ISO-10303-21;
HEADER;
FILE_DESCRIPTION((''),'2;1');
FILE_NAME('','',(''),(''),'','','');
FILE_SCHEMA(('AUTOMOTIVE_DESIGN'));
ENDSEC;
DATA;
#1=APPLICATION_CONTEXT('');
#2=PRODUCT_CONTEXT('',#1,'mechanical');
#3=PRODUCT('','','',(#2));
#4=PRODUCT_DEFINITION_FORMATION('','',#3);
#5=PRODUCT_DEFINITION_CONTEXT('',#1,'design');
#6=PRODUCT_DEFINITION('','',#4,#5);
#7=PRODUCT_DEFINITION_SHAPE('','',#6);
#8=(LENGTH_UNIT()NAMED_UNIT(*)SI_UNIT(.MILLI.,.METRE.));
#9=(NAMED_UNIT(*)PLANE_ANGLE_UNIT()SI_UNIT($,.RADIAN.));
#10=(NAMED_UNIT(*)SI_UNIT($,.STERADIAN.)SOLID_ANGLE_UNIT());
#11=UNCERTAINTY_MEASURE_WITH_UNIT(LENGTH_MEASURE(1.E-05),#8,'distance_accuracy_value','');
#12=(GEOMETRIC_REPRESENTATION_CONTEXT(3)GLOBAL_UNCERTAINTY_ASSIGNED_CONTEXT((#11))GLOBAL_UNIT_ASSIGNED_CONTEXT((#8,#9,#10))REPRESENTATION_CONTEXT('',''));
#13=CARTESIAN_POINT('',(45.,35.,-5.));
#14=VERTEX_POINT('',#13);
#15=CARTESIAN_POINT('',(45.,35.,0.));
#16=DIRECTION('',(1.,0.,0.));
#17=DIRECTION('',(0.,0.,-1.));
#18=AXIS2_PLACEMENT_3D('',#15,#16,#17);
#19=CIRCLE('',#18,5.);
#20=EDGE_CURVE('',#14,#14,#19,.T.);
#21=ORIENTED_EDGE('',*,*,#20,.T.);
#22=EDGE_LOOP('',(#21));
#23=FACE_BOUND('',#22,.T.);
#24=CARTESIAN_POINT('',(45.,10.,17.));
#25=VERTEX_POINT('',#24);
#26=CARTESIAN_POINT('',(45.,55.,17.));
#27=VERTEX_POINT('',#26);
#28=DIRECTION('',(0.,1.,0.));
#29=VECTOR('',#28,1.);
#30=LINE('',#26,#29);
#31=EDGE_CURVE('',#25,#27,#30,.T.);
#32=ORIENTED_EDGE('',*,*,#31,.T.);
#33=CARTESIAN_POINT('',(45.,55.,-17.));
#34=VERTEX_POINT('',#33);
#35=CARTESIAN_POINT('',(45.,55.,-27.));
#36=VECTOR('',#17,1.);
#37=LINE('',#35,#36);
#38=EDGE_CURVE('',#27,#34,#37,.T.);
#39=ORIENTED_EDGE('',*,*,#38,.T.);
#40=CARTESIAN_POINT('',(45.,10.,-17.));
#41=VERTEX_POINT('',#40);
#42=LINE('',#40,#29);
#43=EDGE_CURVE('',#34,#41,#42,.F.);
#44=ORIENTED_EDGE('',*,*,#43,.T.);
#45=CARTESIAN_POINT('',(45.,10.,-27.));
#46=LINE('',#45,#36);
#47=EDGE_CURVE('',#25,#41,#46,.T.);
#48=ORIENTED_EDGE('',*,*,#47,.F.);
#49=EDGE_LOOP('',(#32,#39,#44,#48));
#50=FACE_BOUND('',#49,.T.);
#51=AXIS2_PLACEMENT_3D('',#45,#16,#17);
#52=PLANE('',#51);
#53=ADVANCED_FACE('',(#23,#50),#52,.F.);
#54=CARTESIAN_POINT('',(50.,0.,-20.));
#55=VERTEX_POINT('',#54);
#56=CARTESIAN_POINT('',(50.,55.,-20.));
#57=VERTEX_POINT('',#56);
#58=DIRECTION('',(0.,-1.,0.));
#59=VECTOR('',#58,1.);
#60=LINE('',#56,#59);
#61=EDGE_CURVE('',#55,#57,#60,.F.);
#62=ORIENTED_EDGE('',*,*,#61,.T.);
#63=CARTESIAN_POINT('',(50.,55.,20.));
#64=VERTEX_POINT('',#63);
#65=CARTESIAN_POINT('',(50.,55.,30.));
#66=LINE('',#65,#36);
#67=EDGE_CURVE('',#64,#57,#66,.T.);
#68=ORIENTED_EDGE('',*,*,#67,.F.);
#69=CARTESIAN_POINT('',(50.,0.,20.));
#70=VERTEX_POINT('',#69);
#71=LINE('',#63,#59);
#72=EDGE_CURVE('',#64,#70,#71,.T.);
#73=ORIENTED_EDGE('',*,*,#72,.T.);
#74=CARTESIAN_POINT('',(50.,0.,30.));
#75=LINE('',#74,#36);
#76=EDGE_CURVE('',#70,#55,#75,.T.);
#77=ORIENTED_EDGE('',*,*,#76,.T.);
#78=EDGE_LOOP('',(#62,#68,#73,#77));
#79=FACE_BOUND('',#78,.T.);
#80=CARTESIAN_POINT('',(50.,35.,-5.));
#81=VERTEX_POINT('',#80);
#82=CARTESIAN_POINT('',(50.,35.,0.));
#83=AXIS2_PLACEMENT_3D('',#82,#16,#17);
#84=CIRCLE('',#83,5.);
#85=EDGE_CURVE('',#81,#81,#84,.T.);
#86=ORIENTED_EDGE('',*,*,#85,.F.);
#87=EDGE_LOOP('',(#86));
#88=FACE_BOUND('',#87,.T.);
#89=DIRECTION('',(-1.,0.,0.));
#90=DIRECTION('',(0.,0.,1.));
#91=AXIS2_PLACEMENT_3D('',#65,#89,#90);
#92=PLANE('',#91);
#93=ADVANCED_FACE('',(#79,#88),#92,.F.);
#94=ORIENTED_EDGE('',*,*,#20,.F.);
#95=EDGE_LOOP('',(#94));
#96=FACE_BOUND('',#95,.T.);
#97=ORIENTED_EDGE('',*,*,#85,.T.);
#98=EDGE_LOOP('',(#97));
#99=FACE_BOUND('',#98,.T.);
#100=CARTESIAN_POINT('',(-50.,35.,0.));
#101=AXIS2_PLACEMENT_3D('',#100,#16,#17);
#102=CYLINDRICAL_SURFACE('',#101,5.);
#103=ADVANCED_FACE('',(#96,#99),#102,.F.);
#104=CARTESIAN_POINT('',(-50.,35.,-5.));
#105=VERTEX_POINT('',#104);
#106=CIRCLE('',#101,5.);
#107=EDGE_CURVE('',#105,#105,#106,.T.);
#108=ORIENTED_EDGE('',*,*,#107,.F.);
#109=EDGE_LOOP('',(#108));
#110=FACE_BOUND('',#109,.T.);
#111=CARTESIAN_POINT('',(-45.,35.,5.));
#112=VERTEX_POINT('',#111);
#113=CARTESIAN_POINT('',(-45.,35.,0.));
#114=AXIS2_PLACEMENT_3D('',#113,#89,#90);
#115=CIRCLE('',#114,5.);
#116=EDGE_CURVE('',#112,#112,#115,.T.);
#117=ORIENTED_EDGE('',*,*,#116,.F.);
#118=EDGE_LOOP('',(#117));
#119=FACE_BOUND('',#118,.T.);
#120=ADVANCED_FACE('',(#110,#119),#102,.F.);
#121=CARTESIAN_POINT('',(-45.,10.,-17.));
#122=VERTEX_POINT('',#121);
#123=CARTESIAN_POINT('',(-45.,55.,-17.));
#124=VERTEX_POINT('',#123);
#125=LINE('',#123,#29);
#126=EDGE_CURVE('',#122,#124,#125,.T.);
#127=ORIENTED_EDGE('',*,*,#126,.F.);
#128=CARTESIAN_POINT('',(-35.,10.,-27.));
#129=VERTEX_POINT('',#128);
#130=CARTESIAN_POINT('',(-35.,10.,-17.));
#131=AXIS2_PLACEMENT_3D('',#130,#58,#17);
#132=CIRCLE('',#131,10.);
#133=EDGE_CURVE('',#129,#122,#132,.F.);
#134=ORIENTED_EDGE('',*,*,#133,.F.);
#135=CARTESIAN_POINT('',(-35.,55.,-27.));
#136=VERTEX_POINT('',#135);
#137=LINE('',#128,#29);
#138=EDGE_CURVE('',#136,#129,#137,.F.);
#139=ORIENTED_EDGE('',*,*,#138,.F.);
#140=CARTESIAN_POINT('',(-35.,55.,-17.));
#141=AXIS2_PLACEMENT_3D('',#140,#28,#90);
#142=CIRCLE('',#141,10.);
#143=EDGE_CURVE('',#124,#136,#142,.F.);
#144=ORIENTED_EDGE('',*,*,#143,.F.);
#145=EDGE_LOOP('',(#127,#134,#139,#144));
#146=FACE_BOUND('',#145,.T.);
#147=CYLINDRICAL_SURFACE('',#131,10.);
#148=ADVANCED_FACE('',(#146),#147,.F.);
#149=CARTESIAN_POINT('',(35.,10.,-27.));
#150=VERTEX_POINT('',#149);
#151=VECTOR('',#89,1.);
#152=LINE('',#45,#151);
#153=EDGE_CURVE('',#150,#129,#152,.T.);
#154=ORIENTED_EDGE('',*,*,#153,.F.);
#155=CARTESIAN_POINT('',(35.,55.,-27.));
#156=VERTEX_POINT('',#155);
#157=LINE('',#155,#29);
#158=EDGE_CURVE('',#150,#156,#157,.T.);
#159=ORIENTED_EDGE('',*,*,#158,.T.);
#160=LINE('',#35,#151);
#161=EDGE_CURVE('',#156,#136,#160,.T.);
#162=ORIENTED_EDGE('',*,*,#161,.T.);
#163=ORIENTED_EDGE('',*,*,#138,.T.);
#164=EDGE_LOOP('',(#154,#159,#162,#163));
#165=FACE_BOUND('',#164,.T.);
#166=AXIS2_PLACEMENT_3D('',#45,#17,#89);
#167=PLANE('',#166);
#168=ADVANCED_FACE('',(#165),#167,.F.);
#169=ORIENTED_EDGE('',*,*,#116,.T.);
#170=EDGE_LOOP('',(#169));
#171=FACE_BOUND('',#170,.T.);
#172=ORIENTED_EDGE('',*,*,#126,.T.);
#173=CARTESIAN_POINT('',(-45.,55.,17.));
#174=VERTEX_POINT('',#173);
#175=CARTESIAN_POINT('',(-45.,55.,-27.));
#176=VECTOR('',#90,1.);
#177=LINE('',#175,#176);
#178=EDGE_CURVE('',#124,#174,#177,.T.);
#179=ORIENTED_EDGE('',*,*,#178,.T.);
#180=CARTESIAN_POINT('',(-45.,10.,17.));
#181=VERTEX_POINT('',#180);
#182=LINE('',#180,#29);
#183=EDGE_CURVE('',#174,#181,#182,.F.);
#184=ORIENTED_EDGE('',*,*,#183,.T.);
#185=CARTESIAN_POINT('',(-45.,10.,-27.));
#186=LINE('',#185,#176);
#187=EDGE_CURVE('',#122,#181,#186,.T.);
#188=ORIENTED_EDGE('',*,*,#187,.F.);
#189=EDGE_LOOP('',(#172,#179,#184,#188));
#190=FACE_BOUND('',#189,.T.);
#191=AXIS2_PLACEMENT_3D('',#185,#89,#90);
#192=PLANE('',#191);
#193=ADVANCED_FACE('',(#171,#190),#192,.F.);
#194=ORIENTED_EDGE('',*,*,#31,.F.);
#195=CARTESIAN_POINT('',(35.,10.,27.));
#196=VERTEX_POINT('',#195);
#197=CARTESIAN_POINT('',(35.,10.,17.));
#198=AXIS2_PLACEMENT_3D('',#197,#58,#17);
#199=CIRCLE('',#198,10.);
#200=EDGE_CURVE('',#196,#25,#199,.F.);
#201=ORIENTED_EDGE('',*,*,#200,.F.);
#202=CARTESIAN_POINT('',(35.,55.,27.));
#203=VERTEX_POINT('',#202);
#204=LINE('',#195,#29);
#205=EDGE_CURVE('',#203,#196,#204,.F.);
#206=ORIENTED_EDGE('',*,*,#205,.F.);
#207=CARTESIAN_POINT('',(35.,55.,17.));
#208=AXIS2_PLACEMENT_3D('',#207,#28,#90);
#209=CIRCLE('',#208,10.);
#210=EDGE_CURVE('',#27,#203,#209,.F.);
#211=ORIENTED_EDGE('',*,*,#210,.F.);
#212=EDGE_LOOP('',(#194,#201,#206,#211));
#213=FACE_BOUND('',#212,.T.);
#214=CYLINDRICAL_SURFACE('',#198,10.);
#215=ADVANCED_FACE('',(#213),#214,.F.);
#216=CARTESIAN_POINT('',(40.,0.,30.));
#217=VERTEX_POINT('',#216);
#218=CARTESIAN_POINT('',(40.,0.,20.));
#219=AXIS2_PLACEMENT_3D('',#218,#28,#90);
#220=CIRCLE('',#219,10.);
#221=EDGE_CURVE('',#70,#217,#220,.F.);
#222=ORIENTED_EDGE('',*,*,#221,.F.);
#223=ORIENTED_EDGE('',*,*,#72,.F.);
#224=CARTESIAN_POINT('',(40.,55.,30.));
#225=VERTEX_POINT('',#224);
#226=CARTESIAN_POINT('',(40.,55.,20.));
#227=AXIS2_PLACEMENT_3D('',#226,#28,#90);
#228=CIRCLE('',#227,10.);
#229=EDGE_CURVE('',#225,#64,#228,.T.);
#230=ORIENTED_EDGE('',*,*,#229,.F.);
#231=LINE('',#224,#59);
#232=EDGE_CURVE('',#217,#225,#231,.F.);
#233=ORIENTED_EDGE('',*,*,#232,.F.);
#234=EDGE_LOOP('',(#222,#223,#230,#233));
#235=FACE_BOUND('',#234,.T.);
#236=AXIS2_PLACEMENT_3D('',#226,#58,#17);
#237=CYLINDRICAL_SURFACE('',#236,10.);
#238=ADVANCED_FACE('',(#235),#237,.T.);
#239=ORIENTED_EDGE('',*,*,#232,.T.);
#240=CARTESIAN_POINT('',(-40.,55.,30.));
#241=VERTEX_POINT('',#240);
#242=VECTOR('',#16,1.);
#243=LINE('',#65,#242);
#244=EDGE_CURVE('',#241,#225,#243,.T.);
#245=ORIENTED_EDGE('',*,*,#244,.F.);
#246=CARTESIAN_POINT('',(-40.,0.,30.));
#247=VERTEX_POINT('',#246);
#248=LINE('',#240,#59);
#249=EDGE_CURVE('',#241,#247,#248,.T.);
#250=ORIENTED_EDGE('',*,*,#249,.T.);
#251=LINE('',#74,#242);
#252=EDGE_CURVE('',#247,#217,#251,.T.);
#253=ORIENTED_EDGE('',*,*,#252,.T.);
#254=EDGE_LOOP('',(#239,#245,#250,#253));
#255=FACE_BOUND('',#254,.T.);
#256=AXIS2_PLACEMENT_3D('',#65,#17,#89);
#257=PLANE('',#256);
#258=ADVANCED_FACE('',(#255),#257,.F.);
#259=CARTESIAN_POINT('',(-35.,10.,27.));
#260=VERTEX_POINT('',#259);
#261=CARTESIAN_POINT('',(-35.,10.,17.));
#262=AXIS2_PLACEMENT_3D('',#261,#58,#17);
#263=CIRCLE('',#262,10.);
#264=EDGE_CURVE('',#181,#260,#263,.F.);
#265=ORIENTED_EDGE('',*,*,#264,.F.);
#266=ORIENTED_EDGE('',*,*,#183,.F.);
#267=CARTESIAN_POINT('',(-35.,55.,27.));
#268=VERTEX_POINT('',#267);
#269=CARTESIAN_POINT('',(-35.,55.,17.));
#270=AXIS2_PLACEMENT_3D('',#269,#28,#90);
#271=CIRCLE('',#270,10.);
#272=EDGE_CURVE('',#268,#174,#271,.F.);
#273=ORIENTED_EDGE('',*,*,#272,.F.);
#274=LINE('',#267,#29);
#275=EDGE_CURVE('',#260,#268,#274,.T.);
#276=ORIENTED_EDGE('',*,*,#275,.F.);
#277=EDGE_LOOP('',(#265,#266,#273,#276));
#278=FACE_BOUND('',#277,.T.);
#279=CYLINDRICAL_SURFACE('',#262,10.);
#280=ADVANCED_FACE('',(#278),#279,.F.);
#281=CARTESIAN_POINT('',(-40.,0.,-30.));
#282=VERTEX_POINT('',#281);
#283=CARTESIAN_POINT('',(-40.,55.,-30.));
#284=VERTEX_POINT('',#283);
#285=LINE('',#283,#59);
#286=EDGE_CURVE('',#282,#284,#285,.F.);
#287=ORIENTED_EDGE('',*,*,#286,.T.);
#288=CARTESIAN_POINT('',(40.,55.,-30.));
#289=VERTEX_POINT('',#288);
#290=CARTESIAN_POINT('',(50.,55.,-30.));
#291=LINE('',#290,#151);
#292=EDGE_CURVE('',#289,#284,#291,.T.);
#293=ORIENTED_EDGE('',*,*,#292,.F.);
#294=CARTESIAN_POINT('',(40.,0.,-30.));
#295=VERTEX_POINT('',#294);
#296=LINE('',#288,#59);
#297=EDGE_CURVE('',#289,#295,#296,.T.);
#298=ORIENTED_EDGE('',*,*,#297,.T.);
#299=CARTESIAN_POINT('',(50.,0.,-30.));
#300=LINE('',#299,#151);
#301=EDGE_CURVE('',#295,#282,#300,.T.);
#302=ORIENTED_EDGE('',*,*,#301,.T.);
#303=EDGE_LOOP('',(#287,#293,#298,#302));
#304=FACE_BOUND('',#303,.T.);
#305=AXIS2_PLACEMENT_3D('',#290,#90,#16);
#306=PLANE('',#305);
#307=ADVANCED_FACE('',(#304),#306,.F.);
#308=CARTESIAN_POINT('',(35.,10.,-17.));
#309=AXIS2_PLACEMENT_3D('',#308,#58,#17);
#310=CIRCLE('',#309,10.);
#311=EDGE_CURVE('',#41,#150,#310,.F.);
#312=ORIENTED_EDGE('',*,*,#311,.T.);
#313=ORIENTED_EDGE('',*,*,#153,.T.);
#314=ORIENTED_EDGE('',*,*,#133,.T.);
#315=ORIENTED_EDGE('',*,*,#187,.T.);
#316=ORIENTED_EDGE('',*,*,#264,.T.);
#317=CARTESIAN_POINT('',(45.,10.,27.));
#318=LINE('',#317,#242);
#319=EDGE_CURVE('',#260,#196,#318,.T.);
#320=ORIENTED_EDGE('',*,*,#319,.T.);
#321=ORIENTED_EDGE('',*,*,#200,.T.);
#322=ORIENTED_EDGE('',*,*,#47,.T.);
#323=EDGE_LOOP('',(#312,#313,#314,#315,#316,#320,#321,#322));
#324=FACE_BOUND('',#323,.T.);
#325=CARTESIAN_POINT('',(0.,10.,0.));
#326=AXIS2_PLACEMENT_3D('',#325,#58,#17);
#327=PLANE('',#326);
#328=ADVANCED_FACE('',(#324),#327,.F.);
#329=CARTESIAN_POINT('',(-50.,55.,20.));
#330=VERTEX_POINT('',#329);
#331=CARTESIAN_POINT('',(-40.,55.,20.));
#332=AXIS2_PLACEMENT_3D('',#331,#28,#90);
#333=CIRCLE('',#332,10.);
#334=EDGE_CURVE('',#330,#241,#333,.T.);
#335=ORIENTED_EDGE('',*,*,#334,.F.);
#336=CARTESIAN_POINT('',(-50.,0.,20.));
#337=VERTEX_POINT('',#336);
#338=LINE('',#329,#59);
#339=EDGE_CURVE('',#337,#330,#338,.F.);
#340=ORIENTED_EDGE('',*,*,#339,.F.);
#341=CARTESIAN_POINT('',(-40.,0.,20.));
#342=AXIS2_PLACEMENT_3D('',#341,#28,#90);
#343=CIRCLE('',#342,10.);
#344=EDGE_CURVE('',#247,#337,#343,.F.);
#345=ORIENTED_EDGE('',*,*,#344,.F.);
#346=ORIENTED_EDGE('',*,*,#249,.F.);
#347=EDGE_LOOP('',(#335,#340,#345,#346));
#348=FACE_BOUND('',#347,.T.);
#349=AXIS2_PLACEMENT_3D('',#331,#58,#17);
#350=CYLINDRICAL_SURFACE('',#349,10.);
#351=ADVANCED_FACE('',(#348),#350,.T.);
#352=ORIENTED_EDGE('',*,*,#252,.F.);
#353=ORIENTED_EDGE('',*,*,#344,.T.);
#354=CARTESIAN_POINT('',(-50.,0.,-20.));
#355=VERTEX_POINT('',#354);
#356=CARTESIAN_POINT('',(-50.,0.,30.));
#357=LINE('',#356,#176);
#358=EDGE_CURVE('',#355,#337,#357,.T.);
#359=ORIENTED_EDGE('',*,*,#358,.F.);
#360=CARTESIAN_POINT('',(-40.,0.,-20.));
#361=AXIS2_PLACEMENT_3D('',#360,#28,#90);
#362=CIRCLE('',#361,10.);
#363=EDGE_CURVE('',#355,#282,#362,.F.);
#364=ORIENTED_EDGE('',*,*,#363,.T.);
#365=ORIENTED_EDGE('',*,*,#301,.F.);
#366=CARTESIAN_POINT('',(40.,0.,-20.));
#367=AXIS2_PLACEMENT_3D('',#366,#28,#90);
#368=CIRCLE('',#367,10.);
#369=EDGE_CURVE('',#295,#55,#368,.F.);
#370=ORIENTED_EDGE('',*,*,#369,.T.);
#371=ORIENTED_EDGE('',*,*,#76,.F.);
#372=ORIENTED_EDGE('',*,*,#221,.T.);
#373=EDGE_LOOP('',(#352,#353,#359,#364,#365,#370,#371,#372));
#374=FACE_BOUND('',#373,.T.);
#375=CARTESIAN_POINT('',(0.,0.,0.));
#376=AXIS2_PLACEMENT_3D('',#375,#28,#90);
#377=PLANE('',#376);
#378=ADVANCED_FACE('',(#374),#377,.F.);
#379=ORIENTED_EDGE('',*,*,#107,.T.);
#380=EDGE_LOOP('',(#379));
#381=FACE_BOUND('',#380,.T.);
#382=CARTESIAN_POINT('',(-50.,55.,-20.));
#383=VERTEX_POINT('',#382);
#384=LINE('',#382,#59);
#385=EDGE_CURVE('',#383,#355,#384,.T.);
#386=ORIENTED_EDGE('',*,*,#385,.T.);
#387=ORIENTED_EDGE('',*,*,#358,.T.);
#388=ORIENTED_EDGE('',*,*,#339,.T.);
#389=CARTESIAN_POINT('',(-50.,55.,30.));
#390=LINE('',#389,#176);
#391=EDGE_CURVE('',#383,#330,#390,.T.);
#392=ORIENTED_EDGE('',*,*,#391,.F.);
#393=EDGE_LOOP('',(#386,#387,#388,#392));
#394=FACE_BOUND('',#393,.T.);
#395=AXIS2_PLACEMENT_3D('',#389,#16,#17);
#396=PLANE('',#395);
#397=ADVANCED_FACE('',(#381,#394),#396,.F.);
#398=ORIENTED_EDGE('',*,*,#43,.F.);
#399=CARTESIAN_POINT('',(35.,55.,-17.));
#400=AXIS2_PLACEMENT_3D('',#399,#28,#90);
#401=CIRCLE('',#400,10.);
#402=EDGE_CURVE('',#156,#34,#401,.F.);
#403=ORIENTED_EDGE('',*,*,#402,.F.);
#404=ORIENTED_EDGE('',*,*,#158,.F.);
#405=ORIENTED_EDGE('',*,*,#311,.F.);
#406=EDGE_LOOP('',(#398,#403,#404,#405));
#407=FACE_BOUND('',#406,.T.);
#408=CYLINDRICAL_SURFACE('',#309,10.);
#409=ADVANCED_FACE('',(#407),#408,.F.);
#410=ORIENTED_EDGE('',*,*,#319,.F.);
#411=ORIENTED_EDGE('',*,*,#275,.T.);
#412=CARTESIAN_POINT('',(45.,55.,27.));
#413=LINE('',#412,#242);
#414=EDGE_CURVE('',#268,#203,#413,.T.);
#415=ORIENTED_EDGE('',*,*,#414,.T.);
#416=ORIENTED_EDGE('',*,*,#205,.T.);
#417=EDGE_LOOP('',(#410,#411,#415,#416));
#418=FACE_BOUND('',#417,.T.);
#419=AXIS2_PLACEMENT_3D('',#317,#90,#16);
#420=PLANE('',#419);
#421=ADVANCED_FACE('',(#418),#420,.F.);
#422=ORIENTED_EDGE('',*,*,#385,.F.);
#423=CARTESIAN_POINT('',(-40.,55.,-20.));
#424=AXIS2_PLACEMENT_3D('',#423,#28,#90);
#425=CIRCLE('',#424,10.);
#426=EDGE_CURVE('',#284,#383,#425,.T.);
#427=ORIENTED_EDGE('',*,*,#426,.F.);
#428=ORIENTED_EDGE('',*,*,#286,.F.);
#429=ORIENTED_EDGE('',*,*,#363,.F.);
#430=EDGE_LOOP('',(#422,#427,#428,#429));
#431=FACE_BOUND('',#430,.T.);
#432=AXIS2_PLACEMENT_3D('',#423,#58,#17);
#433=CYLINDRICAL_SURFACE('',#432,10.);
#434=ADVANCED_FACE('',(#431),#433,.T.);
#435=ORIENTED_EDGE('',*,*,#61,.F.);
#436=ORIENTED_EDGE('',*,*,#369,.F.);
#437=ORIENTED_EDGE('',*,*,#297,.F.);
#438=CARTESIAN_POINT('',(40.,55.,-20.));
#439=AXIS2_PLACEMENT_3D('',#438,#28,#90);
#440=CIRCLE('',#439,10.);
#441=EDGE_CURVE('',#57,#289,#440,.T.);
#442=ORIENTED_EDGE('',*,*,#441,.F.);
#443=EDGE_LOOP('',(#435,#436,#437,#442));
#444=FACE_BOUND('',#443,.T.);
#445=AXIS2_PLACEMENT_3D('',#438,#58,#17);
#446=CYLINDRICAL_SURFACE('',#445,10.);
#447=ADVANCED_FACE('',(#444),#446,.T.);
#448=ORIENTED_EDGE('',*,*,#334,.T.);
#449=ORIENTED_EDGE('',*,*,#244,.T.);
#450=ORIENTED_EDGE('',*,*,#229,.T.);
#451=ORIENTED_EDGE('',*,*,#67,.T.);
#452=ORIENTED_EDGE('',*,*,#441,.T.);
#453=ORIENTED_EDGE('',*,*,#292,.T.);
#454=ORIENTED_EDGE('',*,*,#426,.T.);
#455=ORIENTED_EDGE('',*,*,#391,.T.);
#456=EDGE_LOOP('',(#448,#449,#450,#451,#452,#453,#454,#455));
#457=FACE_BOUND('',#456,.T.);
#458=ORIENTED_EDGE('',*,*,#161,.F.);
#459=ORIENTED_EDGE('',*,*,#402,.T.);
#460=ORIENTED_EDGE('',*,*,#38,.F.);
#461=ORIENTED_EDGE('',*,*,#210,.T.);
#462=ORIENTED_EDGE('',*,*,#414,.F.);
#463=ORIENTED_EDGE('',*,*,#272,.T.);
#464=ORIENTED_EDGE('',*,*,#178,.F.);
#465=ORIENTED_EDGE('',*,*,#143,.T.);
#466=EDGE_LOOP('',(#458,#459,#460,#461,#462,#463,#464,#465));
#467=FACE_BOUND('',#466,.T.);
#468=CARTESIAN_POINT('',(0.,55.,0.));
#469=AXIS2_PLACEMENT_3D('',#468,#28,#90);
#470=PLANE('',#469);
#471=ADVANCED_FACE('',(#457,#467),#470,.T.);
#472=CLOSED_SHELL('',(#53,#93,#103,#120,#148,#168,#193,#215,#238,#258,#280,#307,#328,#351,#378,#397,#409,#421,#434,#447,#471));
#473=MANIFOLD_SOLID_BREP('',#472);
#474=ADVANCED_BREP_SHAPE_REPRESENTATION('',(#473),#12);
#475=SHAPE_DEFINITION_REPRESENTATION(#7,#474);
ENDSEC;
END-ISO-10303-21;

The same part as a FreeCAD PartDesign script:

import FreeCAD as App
import Part
import Sketcher
Q = App.Units.Quantity


def edges_at(feature, points):
    """Names of the edges that pass closest to the given points."""
    edges = feature.Shape.Edges
    near = lambda p: min(range(len(edges)), key=lambda i: edges[i].distToShape(Part.Vertex(*p))[0])
    return sorted({f"Edge{near(p) + 1}" for p in points})


def add_polygon(sketch, points):
    """Adds a closed chain of lines whose ends are joined by coincident constraints."""
    first, n = sketch.GeometryCount, len(points)
    for a, b in zip(points, points[1:] + points[:1]):
        sketch.addGeometry(Part.LineSegment(App.Vector(*a, 0), App.Vector(*b, 0)), False)
    for i in range(n):
        sketch.addConstraint(Sketcher.Constraint("Coincident", first + i, 2, first + (i + 1) % n, 1))

doc = App.newDocument("Part")
body = doc.addObject("PartDesign::Body", "Body")

# Sketch on XZ plane
sketch1 = body.newObject("Sketcher::SketchObject", "Sketch")
sketch1.AttachmentSupport = (doc.getObject("XZ_Plane"), [""])
sketch1.MapMode = "FlatFace"
add_polygon(sketch1, [(-50, -30), (-50, 30), (50, 30), (50, -30)])  # lines 0-3
sketch1.addConstraint([
    Sketcher.Constraint("Vertical", 0),
    Sketcher.Constraint("Horizontal", 1),
    Sketcher.Constraint("Vertical", 2),
    Sketcher.Constraint("Horizontal", 3),
    Sketcher.Constraint("Symmetric", 0, 2, 2, 2, -1, 1),
    Sketcher.Constraint("DistanceX", 1, 1, 1, 2, Q("100 mm")),
    Sketcher.Constraint("DistanceY", 0, 1, 0, 2, Q("60 mm")),
])
pad1 = body.newObject("PartDesign::Pad", "Pad")
pad1.Profile = sketch1
pad1.Length = 55
pad1.Reversed = True

# Sketch on XZ plane
sketch2 = body.newObject("Sketcher::SketchObject", "Sketch001")
sketch2.AttachmentSupport = (doc.getObject("XZ_Plane"), [""])
sketch2.MapMode = "FlatFace"
sketch2.AttachmentOffset = App.Placement(App.Vector(0, 0, -55), App.Rotation())
add_polygon(sketch2, [(-45, -27), (-45, 27), (45, 27), (45, -27)])  # lines 0-3
sketch2.addConstraint([
    Sketcher.Constraint("Vertical", 0),
    Sketcher.Constraint("Horizontal", 1),
    Sketcher.Constraint("Vertical", 2),
    Sketcher.Constraint("Horizontal", 3),
    Sketcher.Constraint("Symmetric", 0, 2, 2, 2, -1, 1),
    Sketcher.Constraint("DistanceX", 1, 1, 1, 2, Q("90 mm")),
    Sketcher.Constraint("DistanceY", 0, 1, 0, 2, Q("54 mm")),
])
pocket1 = body.newObject("PartDesign::Pocket", "Pocket")
pocket1.Profile = sketch2
pocket1.Length = 45
pocket1.Reversed = True

# Sketch on YZ plane
sketch3 = body.newObject("Sketcher::SketchObject", "Sketch002")
sketch3.AttachmentSupport = (doc.getObject("YZ_Plane"), [""])
sketch3.MapMode = "FlatFace"
sketch3.AttachmentOffset = App.Placement(App.Vector(0, 0, 50), App.Rotation())
sketch3.addGeometry(Part.Circle(App.Vector(35, 0, 0), App.Vector(0, 0, 1), 5), False)
sketch3.addConstraint([
    Sketcher.Constraint("PointOnObject", 0, 3, -1),
    Sketcher.Constraint("Diameter", 0, Q("10 mm")),
    Sketcher.Constraint("DistanceX", -1, 1, 0, 3, Q("35 mm")),
])
pocket2 = body.newObject("PartDesign::Pocket", "Pocket001")
pocket2.Profile = sketch3
pocket2.Length = 100
doc.recompute()

fillet = body.newObject("PartDesign::Fillet", "Fillet")
fillet.Base = (pocket2, edges_at(pocket2, [
    (-45, 32.5, 27),
    (-45, 32.5, -27),
    (45, 32.5, -27),
    (45, 32.5, 27),
    (-50, 27.5, -30),
    (50, 27.5, -30),
    (50, 27.5, 30),
    (-50, 27.5, 30),
]))
fillet.Radius = 10

doc.recompute()
